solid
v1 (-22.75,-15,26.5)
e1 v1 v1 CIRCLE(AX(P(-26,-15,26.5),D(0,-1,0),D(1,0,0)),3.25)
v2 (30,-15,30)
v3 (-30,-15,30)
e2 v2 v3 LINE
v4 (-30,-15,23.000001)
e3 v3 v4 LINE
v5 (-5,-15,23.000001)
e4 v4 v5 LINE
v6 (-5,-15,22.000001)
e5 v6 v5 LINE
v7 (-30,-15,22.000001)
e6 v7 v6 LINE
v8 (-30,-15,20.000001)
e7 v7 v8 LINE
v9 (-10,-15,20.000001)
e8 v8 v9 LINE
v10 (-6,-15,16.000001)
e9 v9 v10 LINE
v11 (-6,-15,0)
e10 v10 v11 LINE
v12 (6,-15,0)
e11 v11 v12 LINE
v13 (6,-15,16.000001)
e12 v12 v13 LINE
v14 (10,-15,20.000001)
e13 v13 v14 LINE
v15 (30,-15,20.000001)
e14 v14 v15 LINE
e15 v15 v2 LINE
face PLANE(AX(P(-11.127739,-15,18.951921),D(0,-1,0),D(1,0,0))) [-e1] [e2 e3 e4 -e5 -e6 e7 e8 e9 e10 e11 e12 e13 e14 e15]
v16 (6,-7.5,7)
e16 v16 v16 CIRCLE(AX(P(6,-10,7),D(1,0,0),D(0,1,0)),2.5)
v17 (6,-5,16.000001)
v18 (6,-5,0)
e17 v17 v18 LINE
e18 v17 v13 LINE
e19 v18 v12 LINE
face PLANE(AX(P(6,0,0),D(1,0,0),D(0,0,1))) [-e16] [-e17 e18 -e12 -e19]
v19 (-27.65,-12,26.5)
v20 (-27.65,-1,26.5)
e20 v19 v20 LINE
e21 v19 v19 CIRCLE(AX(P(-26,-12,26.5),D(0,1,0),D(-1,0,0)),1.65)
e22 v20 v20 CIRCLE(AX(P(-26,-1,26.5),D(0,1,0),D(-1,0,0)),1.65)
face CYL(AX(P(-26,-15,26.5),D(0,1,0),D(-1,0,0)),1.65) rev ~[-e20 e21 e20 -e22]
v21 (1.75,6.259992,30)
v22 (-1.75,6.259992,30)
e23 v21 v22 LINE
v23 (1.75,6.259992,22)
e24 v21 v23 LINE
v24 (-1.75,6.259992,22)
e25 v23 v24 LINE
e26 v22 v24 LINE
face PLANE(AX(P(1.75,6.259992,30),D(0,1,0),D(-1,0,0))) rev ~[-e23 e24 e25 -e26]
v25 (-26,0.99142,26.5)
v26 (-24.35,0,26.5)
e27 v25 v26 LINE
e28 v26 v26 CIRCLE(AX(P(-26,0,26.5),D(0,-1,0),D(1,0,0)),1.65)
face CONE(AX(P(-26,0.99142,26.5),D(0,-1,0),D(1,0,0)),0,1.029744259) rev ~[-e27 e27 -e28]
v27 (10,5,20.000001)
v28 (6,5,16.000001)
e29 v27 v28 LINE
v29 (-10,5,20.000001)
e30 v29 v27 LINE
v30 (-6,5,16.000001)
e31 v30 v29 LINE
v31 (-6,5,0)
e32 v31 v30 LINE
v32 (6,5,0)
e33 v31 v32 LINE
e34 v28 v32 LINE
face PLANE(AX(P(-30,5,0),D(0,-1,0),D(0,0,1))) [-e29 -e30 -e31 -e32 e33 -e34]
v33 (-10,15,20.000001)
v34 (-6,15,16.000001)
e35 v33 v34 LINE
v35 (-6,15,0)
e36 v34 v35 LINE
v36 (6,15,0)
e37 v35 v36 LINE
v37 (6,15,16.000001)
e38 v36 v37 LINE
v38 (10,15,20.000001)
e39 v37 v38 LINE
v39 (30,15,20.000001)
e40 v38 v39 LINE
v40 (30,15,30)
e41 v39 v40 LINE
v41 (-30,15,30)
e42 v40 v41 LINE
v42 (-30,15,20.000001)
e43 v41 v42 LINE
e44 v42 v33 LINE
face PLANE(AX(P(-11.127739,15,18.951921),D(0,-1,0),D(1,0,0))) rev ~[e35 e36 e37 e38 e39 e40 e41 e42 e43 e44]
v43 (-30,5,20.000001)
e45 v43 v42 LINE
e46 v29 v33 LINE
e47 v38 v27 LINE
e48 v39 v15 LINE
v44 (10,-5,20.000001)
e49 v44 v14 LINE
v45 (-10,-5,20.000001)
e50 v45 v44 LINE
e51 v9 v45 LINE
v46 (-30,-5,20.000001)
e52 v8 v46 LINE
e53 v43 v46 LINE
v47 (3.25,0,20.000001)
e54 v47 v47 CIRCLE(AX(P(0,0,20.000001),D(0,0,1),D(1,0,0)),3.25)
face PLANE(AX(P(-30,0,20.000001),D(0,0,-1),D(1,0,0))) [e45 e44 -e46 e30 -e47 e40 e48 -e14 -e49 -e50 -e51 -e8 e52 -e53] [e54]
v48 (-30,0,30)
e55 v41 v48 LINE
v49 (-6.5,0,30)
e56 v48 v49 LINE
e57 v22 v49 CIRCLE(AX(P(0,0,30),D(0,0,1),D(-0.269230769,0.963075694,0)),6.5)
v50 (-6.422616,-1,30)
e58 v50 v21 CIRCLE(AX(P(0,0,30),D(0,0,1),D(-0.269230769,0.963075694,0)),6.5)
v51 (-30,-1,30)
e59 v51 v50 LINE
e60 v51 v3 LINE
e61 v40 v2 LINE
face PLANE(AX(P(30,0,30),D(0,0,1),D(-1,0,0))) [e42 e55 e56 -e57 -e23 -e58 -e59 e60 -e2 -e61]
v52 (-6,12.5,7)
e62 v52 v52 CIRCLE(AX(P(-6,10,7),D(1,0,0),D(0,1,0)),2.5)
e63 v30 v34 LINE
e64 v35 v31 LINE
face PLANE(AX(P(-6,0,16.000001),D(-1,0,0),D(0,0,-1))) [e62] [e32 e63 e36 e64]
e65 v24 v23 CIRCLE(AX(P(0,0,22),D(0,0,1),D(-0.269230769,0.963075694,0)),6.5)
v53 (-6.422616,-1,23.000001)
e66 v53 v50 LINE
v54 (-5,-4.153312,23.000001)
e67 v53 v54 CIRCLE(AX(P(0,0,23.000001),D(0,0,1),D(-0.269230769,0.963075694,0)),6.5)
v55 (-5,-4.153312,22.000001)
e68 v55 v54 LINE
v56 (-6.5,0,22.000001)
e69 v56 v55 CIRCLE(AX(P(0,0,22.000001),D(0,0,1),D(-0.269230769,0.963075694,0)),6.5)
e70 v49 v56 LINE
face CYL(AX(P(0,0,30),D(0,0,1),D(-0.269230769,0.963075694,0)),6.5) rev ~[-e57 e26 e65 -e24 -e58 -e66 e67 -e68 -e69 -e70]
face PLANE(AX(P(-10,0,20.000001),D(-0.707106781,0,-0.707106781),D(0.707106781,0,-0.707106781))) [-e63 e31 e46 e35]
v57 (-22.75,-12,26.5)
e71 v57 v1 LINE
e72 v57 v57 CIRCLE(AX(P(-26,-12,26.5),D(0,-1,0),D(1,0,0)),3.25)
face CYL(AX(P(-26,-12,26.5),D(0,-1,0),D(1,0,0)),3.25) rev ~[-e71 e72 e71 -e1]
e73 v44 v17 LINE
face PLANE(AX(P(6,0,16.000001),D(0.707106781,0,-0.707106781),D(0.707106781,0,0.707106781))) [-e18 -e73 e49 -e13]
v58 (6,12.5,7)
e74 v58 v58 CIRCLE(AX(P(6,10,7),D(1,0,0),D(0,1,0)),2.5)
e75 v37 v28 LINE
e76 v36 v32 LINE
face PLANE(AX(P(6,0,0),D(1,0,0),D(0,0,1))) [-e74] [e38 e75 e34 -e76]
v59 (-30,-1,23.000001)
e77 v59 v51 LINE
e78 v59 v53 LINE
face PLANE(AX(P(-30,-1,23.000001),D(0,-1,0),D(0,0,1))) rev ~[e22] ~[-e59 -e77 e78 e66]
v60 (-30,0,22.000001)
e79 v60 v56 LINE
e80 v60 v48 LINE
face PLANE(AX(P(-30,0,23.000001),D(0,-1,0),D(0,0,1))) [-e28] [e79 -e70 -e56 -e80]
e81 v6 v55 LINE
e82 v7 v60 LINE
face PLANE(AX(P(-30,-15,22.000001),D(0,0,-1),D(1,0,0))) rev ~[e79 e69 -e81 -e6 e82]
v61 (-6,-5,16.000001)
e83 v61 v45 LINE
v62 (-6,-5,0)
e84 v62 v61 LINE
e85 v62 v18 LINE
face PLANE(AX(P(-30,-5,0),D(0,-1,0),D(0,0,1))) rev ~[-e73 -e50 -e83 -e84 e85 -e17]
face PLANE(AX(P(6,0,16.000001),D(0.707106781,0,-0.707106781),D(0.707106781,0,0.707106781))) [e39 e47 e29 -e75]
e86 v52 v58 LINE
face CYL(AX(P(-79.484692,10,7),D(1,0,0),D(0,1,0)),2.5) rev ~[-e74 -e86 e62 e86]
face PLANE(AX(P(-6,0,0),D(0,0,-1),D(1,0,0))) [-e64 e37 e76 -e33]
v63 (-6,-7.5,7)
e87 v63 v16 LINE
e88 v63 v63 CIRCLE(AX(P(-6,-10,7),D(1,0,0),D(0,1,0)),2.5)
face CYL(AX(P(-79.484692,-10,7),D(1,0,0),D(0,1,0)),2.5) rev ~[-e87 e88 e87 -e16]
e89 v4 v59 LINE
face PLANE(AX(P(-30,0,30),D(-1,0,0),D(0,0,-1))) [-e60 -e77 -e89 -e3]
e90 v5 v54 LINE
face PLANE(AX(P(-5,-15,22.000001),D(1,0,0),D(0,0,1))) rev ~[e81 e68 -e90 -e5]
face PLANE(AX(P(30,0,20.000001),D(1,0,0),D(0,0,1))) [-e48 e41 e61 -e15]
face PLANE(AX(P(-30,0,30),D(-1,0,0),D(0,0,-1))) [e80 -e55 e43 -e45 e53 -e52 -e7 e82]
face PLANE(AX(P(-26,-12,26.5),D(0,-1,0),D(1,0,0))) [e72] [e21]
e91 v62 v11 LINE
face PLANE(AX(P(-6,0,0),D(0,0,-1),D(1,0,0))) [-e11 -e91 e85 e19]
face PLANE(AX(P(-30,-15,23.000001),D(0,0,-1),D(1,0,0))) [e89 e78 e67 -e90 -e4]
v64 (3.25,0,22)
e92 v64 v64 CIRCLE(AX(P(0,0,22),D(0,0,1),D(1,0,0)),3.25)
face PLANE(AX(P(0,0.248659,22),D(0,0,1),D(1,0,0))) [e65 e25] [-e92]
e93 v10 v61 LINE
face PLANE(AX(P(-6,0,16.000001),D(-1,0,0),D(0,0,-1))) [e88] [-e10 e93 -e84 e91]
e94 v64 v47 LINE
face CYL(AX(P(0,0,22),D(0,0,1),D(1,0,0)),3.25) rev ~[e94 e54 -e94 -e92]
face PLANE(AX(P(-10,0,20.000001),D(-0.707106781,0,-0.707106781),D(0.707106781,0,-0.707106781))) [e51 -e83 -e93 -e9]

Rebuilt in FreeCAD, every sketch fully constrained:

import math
import FreeCAD as App
import Part
import Sketcher
from FreeCAD import Vector
Q = App.Units.Quantity

doc = App.newDocument("Part")
body = doc.addObject("PartDesign::Body", "Body")

# Sketch on XZ plane
sketch1 = body.newObject("Sketcher::SketchObject", "Sketch")
sketch1.AttachmentSupport = (doc.getObject("XZ_Plane"), [""])
sketch1.MapMode = "FlatFace"
sketch1.addGeometry([
    Part.LineSegment(Vector(-6, 16, 0), Vector(-6, 0, 0)),  # 0
    Part.LineSegment(Vector(-6, 0, 0), Vector(6, 0, 0)),  # 1
    Part.LineSegment(Vector(6, 0, 0), Vector(6, 16, 0)),  # 2
    Part.LineSegment(Vector(6, 16, 0), Vector(10, 20, 0)),  # 3
    Part.LineSegment(Vector(10, 20, 0), Vector(30, 20, 0)),  # 4
    Part.LineSegment(Vector(30, 20, 0), Vector(30, 30, 0)),  # 5
    Part.LineSegment(Vector(30, 30, 0), Vector(-30, 30, 0)),  # 6
    Part.LineSegment(Vector(-30, 30, 0), Vector(-30, 20, 0)),  # 7
    Part.LineSegment(Vector(-30, 20, 0), Vector(-10, 20, 0)),  # 8
    Part.LineSegment(Vector(-10, 20, 0), Vector(-6, 16, 0)),  # 9
], False)
sketch1.addConstraint([
    Sketcher.Constraint("Coincident", 0, 2, 1, 1),
    Sketcher.Constraint("Coincident", 1, 2, 2, 1),
    Sketcher.Constraint("Coincident", 2, 2, 3, 1),
    Sketcher.Constraint("Coincident", 3, 2, 4, 1),
    Sketcher.Constraint("Coincident", 4, 2, 5, 1),
    Sketcher.Constraint("Coincident", 5, 2, 6, 1),
    Sketcher.Constraint("Coincident", 6, 2, 7, 1),
    Sketcher.Constraint("Coincident", 7, 2, 8, 1),
    Sketcher.Constraint("Coincident", 8, 2, 9, 1),
    Sketcher.Constraint("Coincident", 9, 2, 0, 1),
    Sketcher.Constraint("Vertical", 0),
    Sketcher.Constraint("Horizontal", 1),
    Sketcher.Constraint("Vertical", 2),
    Sketcher.Constraint("Horizontal", 4),
    Sketcher.Constraint("Vertical", 5),
    Sketcher.Constraint("Horizontal", 6),
    Sketcher.Constraint("Vertical", 7),
    Sketcher.Constraint("Horizontal", 8),
    Sketcher.Constraint("Symmetric", 0, 2, 1, 2, -1, 1),
    Sketcher.Constraint("Symmetric", 4, 2, 7, 2, -2),
    Sketcher.Constraint("Perpendicular", 3, 9),
    Sketcher.Constraint("Horizontal", 2, 2, 9, 2),
    Sketcher.Constraint("Equal", 4, 8),
    Sketcher.Constraint("DistanceX", 1, 1, 1, 2, Q("12 mm")),
    Sketcher.Constraint("DistanceX", 4, 1, 4, 2, Q("20 mm")),
    Sketcher.Constraint("DistanceX", 6, 2, 6, 1, Q("60 mm")),
    Sketcher.Constraint("DistanceY", 0, 2, 0, 1, Q("16.000001 mm")),
    Sketcher.Constraint("DistanceY", 5, 1, 5, 2, Q("9.999999 mm")),
])
pad1 = body.newObject("PartDesign::Pad", "Pad")
pad1.Profile = sketch1
pad1.Length = 30
pad1.Midplane = True

# Sketch on XY plane
sketch2 = body.newObject("Sketcher::SketchObject", "Sketch001")
sketch2.AttachmentSupport = (doc.getObject("XY_Plane"), [""])
sketch2.MapMode = "FlatFace"
sketch2.AttachmentOffset = App.Placement(Vector(0, 0, 30), App.Rotation())
sketch2.addGeometry([
    Part.LineSegment(Vector(1.8, 6.3, 0), Vector(-1.8, 6.3, 0)),
    Part.ArcOfCircle(Part.Circle(Vector(0, 0, 0), Vector(0, 0, 1), 6.5), math.radians(106), math.radians(434)),
], False)
sketch2.addConstraint([
    Sketcher.Constraint("Coincident", 0, 1, 1, 2),
    Sketcher.Constraint("Coincident", 1, 1, 0, 2),
    Sketcher.Constraint("Horizontal", 0),
    Sketcher.Constraint("Coincident", 1, 3, -1, 1),
    Sketcher.Constraint("Radius", 1, Q("6.5 mm")),
    Sketcher.Constraint("DistanceX", 0, 2, 0, 1, Q("3.5 mm")),
])
pocket1 = body.newObject("PartDesign::Pocket", "Pocket")
pocket1.Profile = sketch2
pocket1.Length = 8

# Sketch on XY plane
sketch3 = body.newObject("Sketcher::SketchObject", "Sketch002")
sketch3.AttachmentSupport = (doc.getObject("XY_Plane"), [""])
sketch3.MapMode = "FlatFace"
sketch3.AttachmentOffset = App.Placement(Vector(0, 0, 22), App.Rotation())
sketch3.addGeometry(Part.Circle(Vector(0, 0, 0), Vector(0, 0, 1), 3.2), False)
sketch3.addConstraint([
    Sketcher.Constraint("Coincident", 0, 3, -1, 1),
    Sketcher.Constraint("Diameter", 0, Q("6.5 mm")),
])
pocket2 = body.newObject("PartDesign::Pocket", "Pocket001")
pocket2.Profile = sketch3
pocket2.Type = "ThroughAll"

# Sketch on YZ plane
sketch4 = body.newObject("Sketcher::SketchObject", "Sketch003")
sketch4.AttachmentSupport = (doc.getObject("YZ_Plane"), [""])
sketch4.MapMode = "FlatFace"
sketch4.AttachmentOffset = App.Placement(Vector(0, 0, -30), App.Rotation())
sketch4.addGeometry([
    Part.LineSegment(Vector(5, 20, 0), Vector(5, 0, 0)),
    Part.LineSegment(Vector(5, 0, 0), Vector(-5, 0, 0)),
    Part.LineSegment(Vector(-5, 0, 0), Vector(-5, 20, 0)),
    Part.LineSegment(Vector(-5, 20, 0), Vector(5, 20, 0)),
], False)
sketch4.addConstraint([
    Sketcher.Constraint("Coincident", 0, 2, 1, 1),
    Sketcher.Constraint("Coincident", 1, 2, 2, 1),
    Sketcher.Constraint("Coincident", 2, 2, 3, 1),
    Sketcher.Constraint("Coincident", 3, 2, 0, 1),
    Sketcher.Constraint("Vertical", 0),
    Sketcher.Constraint("Horizontal", 1),
    Sketcher.Constraint("Vertical", 2),
    Sketcher.Constraint("Horizontal", 3),
    Sketcher.Constraint("Symmetric", 0, 2, 1, 2, -1, 1),
    Sketcher.Constraint("DistanceX", 1, 2, 1, 1, Q("10 mm")),
    Sketcher.Constraint("DistanceY", 0, 2, 0, 1, Q("20.000001 mm")),
])
pocket3 = body.newObject("PartDesign::Pocket", "Pocket002")
pocket3.Profile = sketch4
pocket3.Type = "ThroughAll"
pocket3.Reversed = True

# Sketch on XZ plane
sketch5 = body.newObject("Sketcher::SketchObject", "Sketch004")
sketch5.AttachmentSupport = (doc.getObject("XZ_Plane"), [""])
sketch5.MapMode = "FlatFace"
sketch5.AttachmentOffset = App.Placement(Vector(0, 0, 15), App.Rotation())
sketch5.addGeometry([
    Part.LineSegment(Vector(-30, 23, 0), Vector(-30, 22, 0)),
    Part.LineSegment(Vector(-30, 22, 0), Vector(-5, 22, 0)),
    Part.LineSegment(Vector(-5, 22, 0), Vector(-5, 23, 0)),
    Part.LineSegment(Vector(-5, 23, 0), Vector(-30, 23, 0)),
], False)
sketch5.addConstraint([
    Sketcher.Constraint("Coincident", 0, 2, 1, 1),
    Sketcher.Constraint("Coincident", 1, 2, 2, 1),
    Sketcher.Constraint("Coincident", 2, 2, 3, 1),
    Sketcher.Constraint("Coincident", 3, 2, 0, 1),
    Sketcher.Constraint("Vertical", 0),
    Sketcher.Constraint("Horizontal", 1),
    Sketcher.Constraint("Vertical", 2),
    Sketcher.Constraint("Horizontal", 3),
    Sketcher.Constraint("DistanceX", 1, 1, 1, 2, Q("25 mm")),
    Sketcher.Constraint("DistanceY", 0, 2, 0, 1, Q("1 mm")),
    Sketcher.Constraint("DistanceX", 0, 2, -1, 1, Q("30 mm")),
    Sketcher.Constraint("DistanceY", -1, 1, 0, 2, Q("22.000001 mm")),
])
pocket4 = body.newObject("PartDesign::Pocket", "Pocket003")
pocket4.Profile = sketch5
pocket4.Length = 15

# Sketch on YZ plane
sketch6 = body.newObject("Sketcher::SketchObject", "Sketch005")
sketch6.AttachmentSupport = (doc.getObject("YZ_Plane"), [""])
sketch6.MapMode = "FlatFace"
sketch6.AttachmentOffset = App.Placement(Vector(0, 0, -30), App.Rotation())
sketch6.addGeometry([
    Part.LineSegment(Vector(0, 30, 0), Vector(0, 23, 0)),
    Part.LineSegment(Vector(0, 23, 0), Vector(-1, 23, 0)),
    Part.LineSegment(Vector(-1, 23, 0), Vector(-1, 30, 0)),
    Part.LineSegment(Vector(-1, 30, 0), Vector(0, 30, 0)),
], False)
sketch6.addConstraint([
    Sketcher.Constraint("Coincident", 0, 2, 1, 1),
    Sketcher.Constraint("Coincident", 1, 2, 2, 1),
    Sketcher.Constraint("Coincident", 2, 2, 3, 1),
    Sketcher.Constraint("Coincident", 3, 2, 0, 1),
    Sketcher.Constraint("Vertical", 0),
    Sketcher.Constraint("Horizontal", 1),
    Sketcher.Constraint("Vertical", 2),
    Sketcher.Constraint("Horizontal", 3),
    Sketcher.Constraint("PointOnObject", 0, 2, -2),
    Sketcher.Constraint("DistanceX", 1, 2, 1, 1, Q("1 mm")),
    Sketcher.Constraint("DistanceY", 0, 2, 0, 1, Q("6.999999 mm")),
    Sketcher.Constraint("DistanceY", -1, 1, 0, 2, Q("23.000001 mm")),
])
pocket5 = body.newObject("PartDesign::Pocket", "Pocket004")
pocket5.Profile = sketch6
pocket5.Length = 25
pocket5.Reversed = True

# Sketch on XZ plane
sketch7 = body.newObject("Sketcher::SketchObject", "Sketch006")
sketch7.AttachmentSupport = (doc.getObject("XZ_Plane"), [""])
sketch7.MapMode = "FlatFace"
sketch7.AttachmentOffset = App.Placement(Vector(0, 0, 15), App.Rotation())
sketch7.addGeometry(Part.Circle(Vector(-26, 26.5, 0), Vector(0, 0, 1), 1.6), False)
sketch7.addConstraint([
    Sketcher.Constraint("Diameter", 0, Q("3.3 mm")),
    Sketcher.Constraint("DistanceX", 0, 3, -1, 1, Q("26 mm")),
    Sketcher.Constraint("DistanceY", -1, 1, 0, 3, Q("26.5 mm")),
])
doc.recompute()
hole = body.newObject("PartDesign::Hole", "Hole")
hole.Profile = sketch7
hole.ThreadType = "None"
hole.Diameter = 3.3
hole.DepthType = "Dimension"
hole.Depth = 15
hole.DrillPoint = "Angled"
hole.DrillPointAngle = 118
hole.HoleCutType = "Counterbore"
hole.HoleCutDiameter = 6.5
hole.HoleCutDepth = 3

# Sketch on YZ plane
sketch8 = body.newObject("Sketcher::SketchObject", "Sketch007")
sketch8.AttachmentSupport = (doc.getObject("YZ_Plane"), [""])
sketch8.MapMode = "FlatFace"
sketch8.AttachmentOffset = App.Placement(Vector(0, 0, -6), App.Rotation())
sketch8.addGeometry([
    Part.Circle(Vector(10, 7, 0), Vector(0, 0, 1), 2.5),
    Part.Circle(Vector(-10, 7, 0), Vector(0, 0, 1), 2.5),
], False)
sketch8.addConstraint([
    Sketcher.Constraint("Equal", 0, 1),
    Sketcher.Constraint("Symmetric", 0, 3, 1, 3, -2),
    Sketcher.Constraint("Diameter", 0, Q("5 mm")),
    Sketcher.Constraint("DistanceX", -1, 1, 0, 3, Q("10 mm")),
    Sketcher.Constraint("DistanceY", -1, 1, 0, 3, Q("7 mm")),
])
doc.recompute()
hole2 = body.newObject("PartDesign::Hole", "Hole001")
hole2.Profile = sketch8
hole2.ThreadType = "None"
hole2.Diameter = 5
hole2.DepthType = "ThroughAll"
hole2.Reversed = True

doc.recompute()
